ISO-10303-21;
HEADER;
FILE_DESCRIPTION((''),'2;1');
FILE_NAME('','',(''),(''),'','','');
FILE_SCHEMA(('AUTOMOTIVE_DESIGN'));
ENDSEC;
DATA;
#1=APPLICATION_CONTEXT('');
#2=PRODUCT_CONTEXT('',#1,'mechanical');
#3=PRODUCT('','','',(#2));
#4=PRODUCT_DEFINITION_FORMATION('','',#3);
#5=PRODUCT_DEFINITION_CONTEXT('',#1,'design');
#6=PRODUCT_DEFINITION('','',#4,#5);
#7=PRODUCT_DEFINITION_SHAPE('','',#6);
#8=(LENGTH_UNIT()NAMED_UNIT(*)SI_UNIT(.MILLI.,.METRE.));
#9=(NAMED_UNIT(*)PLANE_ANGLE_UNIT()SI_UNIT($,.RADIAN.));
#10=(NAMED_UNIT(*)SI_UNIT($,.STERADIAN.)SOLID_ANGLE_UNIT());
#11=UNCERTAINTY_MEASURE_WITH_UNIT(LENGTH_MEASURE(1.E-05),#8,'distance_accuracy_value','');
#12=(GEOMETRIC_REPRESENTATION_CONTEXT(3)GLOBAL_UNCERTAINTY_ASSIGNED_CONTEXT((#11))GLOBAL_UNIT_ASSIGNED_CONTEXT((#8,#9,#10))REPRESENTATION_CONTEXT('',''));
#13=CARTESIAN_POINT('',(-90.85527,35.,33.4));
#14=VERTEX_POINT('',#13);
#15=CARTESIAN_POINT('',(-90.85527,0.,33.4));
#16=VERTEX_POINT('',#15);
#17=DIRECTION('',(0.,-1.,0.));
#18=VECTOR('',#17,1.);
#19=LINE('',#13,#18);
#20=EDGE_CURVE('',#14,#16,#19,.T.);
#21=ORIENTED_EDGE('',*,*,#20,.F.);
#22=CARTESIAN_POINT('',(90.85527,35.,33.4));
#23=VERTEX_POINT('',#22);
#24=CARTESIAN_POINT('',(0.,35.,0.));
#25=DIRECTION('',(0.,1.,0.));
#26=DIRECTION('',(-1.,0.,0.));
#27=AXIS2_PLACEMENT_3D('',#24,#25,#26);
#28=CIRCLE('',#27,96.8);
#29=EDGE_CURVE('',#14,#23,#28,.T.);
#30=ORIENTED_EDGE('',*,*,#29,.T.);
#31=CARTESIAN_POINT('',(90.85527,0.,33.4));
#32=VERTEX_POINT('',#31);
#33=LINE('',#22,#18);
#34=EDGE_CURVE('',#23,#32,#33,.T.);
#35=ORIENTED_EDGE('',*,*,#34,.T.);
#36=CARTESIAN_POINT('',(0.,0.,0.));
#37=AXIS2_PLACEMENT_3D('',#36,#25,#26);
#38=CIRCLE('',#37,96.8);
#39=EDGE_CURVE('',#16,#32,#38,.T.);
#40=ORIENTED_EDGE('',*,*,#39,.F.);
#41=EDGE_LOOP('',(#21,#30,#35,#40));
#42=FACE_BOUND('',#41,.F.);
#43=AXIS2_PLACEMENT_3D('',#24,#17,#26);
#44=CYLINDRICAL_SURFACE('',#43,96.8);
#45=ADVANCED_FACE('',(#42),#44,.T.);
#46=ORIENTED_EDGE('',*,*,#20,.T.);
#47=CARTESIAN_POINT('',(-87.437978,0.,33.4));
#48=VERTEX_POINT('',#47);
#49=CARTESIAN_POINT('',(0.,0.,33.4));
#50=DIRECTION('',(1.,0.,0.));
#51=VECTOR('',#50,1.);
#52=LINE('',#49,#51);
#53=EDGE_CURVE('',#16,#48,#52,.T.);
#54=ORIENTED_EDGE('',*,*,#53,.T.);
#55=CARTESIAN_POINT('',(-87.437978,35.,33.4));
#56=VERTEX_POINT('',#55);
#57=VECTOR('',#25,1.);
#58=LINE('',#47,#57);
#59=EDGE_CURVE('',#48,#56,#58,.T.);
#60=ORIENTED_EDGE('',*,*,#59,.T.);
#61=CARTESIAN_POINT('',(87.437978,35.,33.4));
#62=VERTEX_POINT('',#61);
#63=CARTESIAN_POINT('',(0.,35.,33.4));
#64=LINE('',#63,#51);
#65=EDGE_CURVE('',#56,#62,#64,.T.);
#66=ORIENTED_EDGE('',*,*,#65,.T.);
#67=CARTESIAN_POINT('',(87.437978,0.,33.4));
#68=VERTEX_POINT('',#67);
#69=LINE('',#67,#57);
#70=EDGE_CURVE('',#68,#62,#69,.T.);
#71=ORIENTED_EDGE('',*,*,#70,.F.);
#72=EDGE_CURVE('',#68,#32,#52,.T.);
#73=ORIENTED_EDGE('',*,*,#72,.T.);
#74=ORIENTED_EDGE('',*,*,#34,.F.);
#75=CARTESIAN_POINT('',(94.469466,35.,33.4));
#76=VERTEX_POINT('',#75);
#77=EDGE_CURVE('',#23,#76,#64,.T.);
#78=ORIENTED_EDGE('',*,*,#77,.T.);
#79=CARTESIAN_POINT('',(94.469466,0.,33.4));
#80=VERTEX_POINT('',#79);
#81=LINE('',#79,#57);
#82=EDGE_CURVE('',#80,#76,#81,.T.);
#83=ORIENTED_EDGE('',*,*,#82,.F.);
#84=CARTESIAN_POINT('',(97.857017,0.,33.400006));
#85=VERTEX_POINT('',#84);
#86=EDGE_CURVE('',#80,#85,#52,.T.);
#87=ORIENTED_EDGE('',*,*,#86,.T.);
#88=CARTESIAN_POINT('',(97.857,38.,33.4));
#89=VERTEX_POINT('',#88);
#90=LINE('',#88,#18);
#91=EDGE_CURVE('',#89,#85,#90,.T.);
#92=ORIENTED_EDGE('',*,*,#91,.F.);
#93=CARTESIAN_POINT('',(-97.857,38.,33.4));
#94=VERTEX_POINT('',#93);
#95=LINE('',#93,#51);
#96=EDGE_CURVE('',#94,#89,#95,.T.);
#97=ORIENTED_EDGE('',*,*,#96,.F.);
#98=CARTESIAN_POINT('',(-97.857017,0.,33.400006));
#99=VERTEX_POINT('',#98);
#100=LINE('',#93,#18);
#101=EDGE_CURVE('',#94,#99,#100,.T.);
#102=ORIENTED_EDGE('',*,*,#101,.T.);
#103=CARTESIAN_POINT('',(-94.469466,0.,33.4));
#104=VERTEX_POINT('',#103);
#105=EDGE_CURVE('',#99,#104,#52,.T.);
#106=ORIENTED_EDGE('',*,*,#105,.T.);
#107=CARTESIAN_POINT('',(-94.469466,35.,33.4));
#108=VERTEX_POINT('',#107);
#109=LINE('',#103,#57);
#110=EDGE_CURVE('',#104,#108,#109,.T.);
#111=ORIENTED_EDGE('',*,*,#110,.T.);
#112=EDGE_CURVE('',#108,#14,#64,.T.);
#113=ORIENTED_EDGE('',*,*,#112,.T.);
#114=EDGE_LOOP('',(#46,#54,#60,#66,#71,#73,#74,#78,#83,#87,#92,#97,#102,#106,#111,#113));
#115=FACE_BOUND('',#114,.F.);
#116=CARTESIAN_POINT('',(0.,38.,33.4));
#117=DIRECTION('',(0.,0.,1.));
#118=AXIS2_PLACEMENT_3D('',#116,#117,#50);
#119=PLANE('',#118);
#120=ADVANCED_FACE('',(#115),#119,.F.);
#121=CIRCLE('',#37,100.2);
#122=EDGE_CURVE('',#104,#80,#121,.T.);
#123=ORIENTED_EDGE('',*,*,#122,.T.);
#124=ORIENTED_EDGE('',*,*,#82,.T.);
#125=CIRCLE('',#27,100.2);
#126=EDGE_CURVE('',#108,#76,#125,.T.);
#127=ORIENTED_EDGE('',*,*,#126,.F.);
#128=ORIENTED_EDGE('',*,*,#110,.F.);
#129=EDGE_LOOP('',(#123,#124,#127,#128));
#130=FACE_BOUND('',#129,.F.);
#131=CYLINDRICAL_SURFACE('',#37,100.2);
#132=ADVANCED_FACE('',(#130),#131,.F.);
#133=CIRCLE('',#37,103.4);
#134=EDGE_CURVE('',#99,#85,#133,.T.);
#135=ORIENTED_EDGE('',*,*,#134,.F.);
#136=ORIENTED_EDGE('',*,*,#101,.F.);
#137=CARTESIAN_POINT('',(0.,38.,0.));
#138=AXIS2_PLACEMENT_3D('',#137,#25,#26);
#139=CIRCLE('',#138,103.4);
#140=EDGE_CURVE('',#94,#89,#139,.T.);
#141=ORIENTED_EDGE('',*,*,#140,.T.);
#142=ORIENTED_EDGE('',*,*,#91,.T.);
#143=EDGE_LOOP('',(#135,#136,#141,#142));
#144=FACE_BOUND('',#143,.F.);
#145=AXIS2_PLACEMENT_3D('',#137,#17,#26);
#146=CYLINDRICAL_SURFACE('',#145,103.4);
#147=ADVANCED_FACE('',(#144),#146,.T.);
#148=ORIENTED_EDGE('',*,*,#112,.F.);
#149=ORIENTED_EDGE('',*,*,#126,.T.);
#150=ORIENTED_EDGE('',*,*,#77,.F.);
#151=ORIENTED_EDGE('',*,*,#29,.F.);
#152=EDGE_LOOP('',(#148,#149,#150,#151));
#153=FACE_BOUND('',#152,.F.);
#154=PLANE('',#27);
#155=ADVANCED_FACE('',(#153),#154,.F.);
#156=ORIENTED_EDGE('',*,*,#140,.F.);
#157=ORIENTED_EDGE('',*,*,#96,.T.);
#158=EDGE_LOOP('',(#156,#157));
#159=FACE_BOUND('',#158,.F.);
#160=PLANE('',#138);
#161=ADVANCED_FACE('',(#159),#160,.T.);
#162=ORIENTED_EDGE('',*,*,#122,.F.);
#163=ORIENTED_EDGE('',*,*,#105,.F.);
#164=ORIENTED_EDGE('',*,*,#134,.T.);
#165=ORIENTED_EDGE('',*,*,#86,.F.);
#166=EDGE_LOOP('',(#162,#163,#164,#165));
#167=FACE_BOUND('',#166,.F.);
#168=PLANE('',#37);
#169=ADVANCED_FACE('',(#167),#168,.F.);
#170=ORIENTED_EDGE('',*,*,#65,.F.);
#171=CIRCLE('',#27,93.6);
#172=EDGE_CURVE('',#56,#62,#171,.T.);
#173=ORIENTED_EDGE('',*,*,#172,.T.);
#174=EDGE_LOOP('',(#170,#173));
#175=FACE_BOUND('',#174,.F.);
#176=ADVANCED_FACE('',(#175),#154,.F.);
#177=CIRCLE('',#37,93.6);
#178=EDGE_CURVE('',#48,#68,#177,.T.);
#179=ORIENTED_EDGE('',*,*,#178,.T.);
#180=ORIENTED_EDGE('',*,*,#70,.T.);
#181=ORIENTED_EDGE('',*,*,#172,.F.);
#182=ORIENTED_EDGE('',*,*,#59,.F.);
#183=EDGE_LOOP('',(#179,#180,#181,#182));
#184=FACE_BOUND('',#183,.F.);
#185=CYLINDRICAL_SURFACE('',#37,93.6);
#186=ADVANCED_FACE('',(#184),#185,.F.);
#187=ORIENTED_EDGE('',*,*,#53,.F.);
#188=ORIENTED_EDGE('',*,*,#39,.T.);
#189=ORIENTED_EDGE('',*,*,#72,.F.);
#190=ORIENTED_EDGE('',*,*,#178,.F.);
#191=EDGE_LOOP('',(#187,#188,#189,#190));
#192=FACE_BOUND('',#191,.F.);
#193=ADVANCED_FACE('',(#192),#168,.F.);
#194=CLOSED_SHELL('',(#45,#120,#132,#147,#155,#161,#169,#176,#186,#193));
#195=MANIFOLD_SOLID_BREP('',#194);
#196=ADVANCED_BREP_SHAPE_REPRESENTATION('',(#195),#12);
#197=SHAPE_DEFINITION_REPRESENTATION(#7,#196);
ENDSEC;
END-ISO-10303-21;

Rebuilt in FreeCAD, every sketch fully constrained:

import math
import FreeCAD as App
import Part
import Sketcher
Q = App.Units.Quantity

doc = App.newDocument("Part")
body = doc.addObject("PartDesign::Body", "Body")

# Sketch on XY plane
sketch1 = doc.addObject("Sketcher::SketchObject", "Sketch")
body.addObject(sketch1)
sketch1.AttachmentSupport = (doc.XY_Plane, [""])
sketch1.MapMode = "FlatFace"
sketch1.addGeometry(Part.LineSegment(App.Vector(-93.6, 35, 0), App.Vector(0, 35, 0)), False)
sketch1.addGeometry(Part.LineSegment(App.Vector(0, 35, 0), App.Vector(0, 38, 0)), False)
sketch1.addGeometry(Part.LineSegment(App.Vector(0, 38, 0), App.Vector(-103.4, 38, 0)), False)
sketch1.addGeometry(Part.LineSegment(App.Vector(-103.4, 38, 0), App.Vector(-103.4, 0, 0)), False)
sketch1.addGeometry(Part.LineSegment(App.Vector(-103.4, 0, 0), App.Vector(-100.2, 0, 0)), False)
sketch1.addGeometry(Part.LineSegment(App.Vector(-100.2, 0, 0), App.Vector(-100.2, 35, 0)), False)
sketch1.addGeometry(Part.LineSegment(App.Vector(-100.2, 35, 0), App.Vector(-96.8, 35, 0)), False)
sketch1.addGeometry(Part.LineSegment(App.Vector(-96.8, 35, 0), App.Vector(-96.8, 0, 0)), False)
sketch1.addGeometry(Part.LineSegment(App.Vector(-96.8, 0, 0), App.Vector(-93.6, 0, 0)), False)
sketch1.addGeometry(Part.LineSegment(App.Vector(-93.6, 0, 0), App.Vector(-93.6, 35, 0)), False)
sketch1.addConstraint(Sketcher.Constraint("Coincident", 0, 2, 1, 1))
sketch1.addConstraint(Sketcher.Constraint("Coincident", 1, 2, 2, 1))
sketch1.addConstraint(Sketcher.Constraint("Coincident", 2, 2, 3, 1))
sketch1.addConstraint(Sketcher.Constraint("Coincident", 3, 2, 4, 1))
sketch1.addConstraint(Sketcher.Constraint("Coincident", 4, 2, 5, 1))
sketch1.addConstraint(Sketcher.Constraint("Coincident", 5, 2, 6, 1))
sketch1.addConstraint(Sketcher.Constraint("Coincident", 6, 2, 7, 1))
sketch1.addConstraint(Sketcher.Constraint("Coincident", 7, 2, 8, 1))
sketch1.addConstraint(Sketcher.Constraint("Coincident", 8, 2, 9, 1))
sketch1.addConstraint(Sketcher.Constraint("Coincident", 9, 2, 0, 1))
sketch1.addConstraint(Sketcher.Constraint("Horizontal", 0))
sketch1.addConstraint(Sketcher.Constraint("Vertical", 1))
sketch1.addConstraint(Sketcher.Constraint("Horizontal", 2))
sketch1.addConstraint(Sketcher.Constraint("Vertical", 3))
sketch1.addConstraint(Sketcher.Constraint("Horizontal", 4))
sketch1.addConstraint(Sketcher.Constraint("Vertical", 5))
sketch1.addConstraint(Sketcher.Constraint("Horizontal", 6))
sketch1.addConstraint(Sketcher.Constraint("Vertical", 7))
sketch1.addConstraint(Sketcher.Constraint("Horizontal", 8))
sketch1.addConstraint(Sketcher.Constraint("Vertical", 9))
sketch1.addConstraint(Sketcher.Constraint("PointOnObject", 0, 2, -2))
sketch1.addConstraint(Sketcher.Constraint("PointOnObject", 3, 2, -1))
sketch1.addConstraint(Sketcher.Constraint("PointOnObject", 7, 2, -1))
sketch1.addConstraint(Sketcher.Constraint("Horizontal", 0, 2, 5, 2))
sketch1.addConstraint(Sketcher.Constraint("Equal", 4, 8))
sketch1.addConstraint(Sketcher.Constraint("DistanceY", 3, 2, 3, 1, Q("38 mm")))
sketch1.addConstraint(Sketcher.Constraint("DistanceY", 5, 1, 5, 2, Q("35 mm")))
sketch1.addConstraint(Sketcher.Constraint("DistanceX", 2, 2, 2, 1, Q("103.4 mm")))
sketch1.addConstraint(Sketcher.Constraint("DistanceX", 4, 1, 4, 2, Q("3.2 mm")))
sketch1.addConstraint(Sketcher.Constraint("DistanceX", 6, 1, 6, 2, Q("3.4 mm")))
revolution = doc.addObject("PartDesign::Revolution", "Revolution")
body.addObject(revolution)
revolution.Profile = sketch1
revolution.ReferenceAxis = (sketch1, ["V_Axis"])
revolution.Angle = 180

# Sketch on XZ plane
sketch2 = doc.addObject("Sketcher::SketchObject", "Sketch001")
body.addObject(sketch2)
sketch2.AttachmentSupport = (doc.XZ_Plane, [""])
sketch2.MapMode = "FlatFace"
sketch2.AttachmentOffset = App.Placement(App.Vector(0, 0, -38), App.Rotation())
sketch2.addGeometry(Part.LineSegment(App.Vector(103, 0, 0), App.Vector(-103, 0, 0)), False)
sketch2.addGeometry(Part.ArcOfCircle(Part.Circle(App.Vector(0, 0, 0), App.Vector(0, 0, 1), 103), math.radians(161.15), math.radians(180)), False)
sketch2.addGeometry(Part.LineSegment(App.Vector(-98, 33, 0), App.Vector(98, 33, 0)), False)
sketch2.addGeometry(Part.ArcOfCircle(Part.Circle(App.Vector(0, 0, 0), App.Vector(0, 0, 1), 103), math.radians(0), math.radians(18.85)), False)
sketch2.addConstraint(Sketcher.Constraint("Coincident", 0, 2, 1, 2))
sketch2.addConstraint(Sketcher.Constraint("Coincident", 1, 1, 2, 1))
sketch2.addConstraint(Sketcher.Constraint("Coincident", 2, 2, 3, 2))
sketch2.addConstraint(Sketcher.Constraint("Coincident", 3, 1, 0, 1))
sketch2.addConstraint(Sketcher.Constraint("Horizontal", 0))
sketch2.addConstraint(Sketcher.Constraint("Horizontal", 2))
sketch2.addConstraint(Sketcher.Constraint("Coincident", 1, 3, -1, 1))
sketch2.addConstraint(Sketcher.Constraint("Coincident", 3, 3, -1, 1))
sketch2.addConstraint(Sketcher.Constraint("Equal", 1, 3))
sketch2.addConstraint(Sketcher.Constraint("PointOnObject", 0, 2, -1))
sketch2.addConstraint(Sketcher.Constraint("Radius", 1, Q("103.4 mm")))
sketch2.addConstraint(Sketcher.Constraint("DistanceY", -1, 1, 1, 1, Q("33.4 mm")))
pocket1 = doc.addObject("PartDesign::Pocket", "Pocket")
body.addObject(pocket1)
pocket1.Profile = sketch2
pocket1.Length = 100
pocket1.Reversed = True

doc.recompute()
